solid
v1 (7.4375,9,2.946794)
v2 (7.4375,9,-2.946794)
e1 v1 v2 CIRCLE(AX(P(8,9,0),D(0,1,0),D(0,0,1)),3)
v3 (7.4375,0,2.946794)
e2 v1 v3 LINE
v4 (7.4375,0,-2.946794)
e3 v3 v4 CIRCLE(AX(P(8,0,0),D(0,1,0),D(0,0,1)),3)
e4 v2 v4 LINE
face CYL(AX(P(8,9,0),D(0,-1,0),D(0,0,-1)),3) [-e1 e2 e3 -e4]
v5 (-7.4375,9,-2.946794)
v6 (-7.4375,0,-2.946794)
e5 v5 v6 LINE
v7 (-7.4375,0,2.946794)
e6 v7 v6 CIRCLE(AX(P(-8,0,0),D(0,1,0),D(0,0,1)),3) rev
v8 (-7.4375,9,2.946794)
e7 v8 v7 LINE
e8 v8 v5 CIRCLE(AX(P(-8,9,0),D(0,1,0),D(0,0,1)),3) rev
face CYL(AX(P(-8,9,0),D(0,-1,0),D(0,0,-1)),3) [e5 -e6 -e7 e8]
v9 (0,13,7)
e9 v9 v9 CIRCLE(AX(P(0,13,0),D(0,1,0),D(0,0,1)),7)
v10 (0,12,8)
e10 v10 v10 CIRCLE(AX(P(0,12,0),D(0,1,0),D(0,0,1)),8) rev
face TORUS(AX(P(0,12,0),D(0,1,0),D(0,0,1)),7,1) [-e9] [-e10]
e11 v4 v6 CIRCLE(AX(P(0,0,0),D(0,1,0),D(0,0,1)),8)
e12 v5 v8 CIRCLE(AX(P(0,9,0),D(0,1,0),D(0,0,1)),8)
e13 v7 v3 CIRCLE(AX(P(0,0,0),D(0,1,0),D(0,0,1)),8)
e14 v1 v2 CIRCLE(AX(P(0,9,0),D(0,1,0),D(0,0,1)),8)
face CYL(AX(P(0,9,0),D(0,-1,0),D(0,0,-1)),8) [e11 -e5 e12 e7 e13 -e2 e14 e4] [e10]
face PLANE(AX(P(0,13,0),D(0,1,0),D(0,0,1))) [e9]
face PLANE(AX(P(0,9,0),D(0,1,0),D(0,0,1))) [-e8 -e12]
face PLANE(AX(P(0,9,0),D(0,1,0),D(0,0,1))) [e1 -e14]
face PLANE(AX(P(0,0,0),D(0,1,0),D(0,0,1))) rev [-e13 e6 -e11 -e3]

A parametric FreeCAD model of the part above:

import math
import FreeCAD as App
import Part
import Sketcher
from FreeCAD import Vector
Q = App.Units.Quantity


def edges_at(feature, points):
    """Names of the edges that pass closest to the given points."""
    edges = feature.Shape.Edges
    near = lambda p: min(range(len(edges)), key=lambda i: edges[i].distToShape(Part.Vertex(*p))[0])
    return sorted({f"Edge{near(p) + 1}" for p in points})

doc = App.newDocument("Part")
params = doc.addObject("Spreadsheet::Sheet", "Params")
for row, (alias, value) in enumerate([
    ("sketch1_radius", "8 mm"),
    ("sketch1_radius2", "3 mm"),
    ("pad1_length", "9 mm"),
    ("sketch2_diameter", "16 mm"),
    ("pad2_length", "4 mm"),
    ("fillet_radius", "1 mm"),
], start=1):
    params.set(f"A{row}", alias)
    params.set(f"B{row}", "=" + value)
    params.setAlias(f"B{row}", alias)

body = doc.addObject("PartDesign::Body", "Body")

# Sketch on XZ plane
sketch1 = doc.addObject("Sketcher::SketchObject", "Sketch")
body.addObject(sketch1)
sketch1.AttachmentSupport = (doc.XZ_Plane, [""])
sketch1.MapMode = "FlatFace"
sketch1.addGeometry([
    Part.ArcOfCircle(Part.Circle(Vector(0, 0, 0), Vector(0, 0, 1), 8), math.radians(-158), math.radians(-22)),
    Part.ArcOfCircle(Part.Circle(Vector(-8, 0, 0), Vector(0, 0, 1), 3), math.radians(79), math.radians(281)),
    Part.ArcOfCircle(Part.Circle(Vector(0, 0, 0), Vector(0, 0, 1), 8), math.radians(22), math.radians(158)),
    Part.ArcOfCircle(Part.Circle(Vector(8, 0, 0), Vector(0, 0, 1), 3), math.radians(-101), math.radians(101)),
], False)
sketch1.addConstraint([
    Sketcher.Constraint("Coincident", 0, 1, 1, 2),
    Sketcher.Constraint("Coincident", 1, 1, 2, 2),
    Sketcher.Constraint("Coincident", 2, 1, 3, 2),
    Sketcher.Constraint("Coincident", 3, 1, 0, 2),
    Sketcher.Constraint("Coincident", 0, 3, -1, 1),
    Sketcher.Constraint("Coincident", 2, 3, -1, 1),
    Sketcher.Constraint("Equal", 0, 2),
    Sketcher.Constraint("Equal", 1, 3),
    Sketcher.Constraint("Symmetric", 1, 3, 3, 3, -1, 1),
    Sketcher.Constraint("PointOnObject", 1, 3, -1),
    Sketcher.Constraint("Radius", 0, Q("8 mm")),
    Sketcher.Constraint("Radius", 1, Q("3 mm")),
    Sketcher.Constraint("DistanceX", 1, 3, -1, 1, Q("8 mm")),
])
sketch1.setExpression("Constraints[10]", "Params.sketch1_radius")
sketch1.setExpression("Constraints[11]", "Params.sketch1_radius2")
pad1 = doc.addObject("PartDesign::Pad", "Pad")
body.addObject(pad1)
pad1.Profile = sketch1
pad1.setExpression("Length", "Params.pad1_length")
pad1.Reversed = True

# Sketch on XZ plane
sketch2 = doc.addObject("Sketcher::SketchObject", "Sketch001")
body.addObject(sketch2)
sketch2.AttachmentSupport = (doc.XZ_Plane, [""])
sketch2.MapMode = "FlatFace"
sketch2.AttachmentOffset = App.Placement(Vector(0, 0, -9), App.Rotation())
sketch2.addGeometry(Part.Circle(Vector(0, 0, 0), Vector(0, 0, 1), 8), False)
sketch2.addConstraint([
    Sketcher.Constraint("Coincident", 0, 3, -1, 1),
    Sketcher.Constraint("Diameter", 0, Q("16 mm")),
])
sketch2.setExpression("Constraints[1]", "Params.sketch2_diameter")
pad2 = doc.addObject("PartDesign::Pad", "Pad001")
body.addObject(pad2)
pad2.Profile = sketch2
pad2.setExpression("Length", "Params.pad2_length")
pad2.Reversed = True
doc.recompute()

fillet = doc.addObject("PartDesign::Fillet", "Fillet")
body.addObject(fillet)
fillet.Base = (pad2, edges_at(pad2, [(7.438, 13, 2.947)]))
fillet.setExpression("Radius", "Params.fillet_radius")

doc.recompute()
